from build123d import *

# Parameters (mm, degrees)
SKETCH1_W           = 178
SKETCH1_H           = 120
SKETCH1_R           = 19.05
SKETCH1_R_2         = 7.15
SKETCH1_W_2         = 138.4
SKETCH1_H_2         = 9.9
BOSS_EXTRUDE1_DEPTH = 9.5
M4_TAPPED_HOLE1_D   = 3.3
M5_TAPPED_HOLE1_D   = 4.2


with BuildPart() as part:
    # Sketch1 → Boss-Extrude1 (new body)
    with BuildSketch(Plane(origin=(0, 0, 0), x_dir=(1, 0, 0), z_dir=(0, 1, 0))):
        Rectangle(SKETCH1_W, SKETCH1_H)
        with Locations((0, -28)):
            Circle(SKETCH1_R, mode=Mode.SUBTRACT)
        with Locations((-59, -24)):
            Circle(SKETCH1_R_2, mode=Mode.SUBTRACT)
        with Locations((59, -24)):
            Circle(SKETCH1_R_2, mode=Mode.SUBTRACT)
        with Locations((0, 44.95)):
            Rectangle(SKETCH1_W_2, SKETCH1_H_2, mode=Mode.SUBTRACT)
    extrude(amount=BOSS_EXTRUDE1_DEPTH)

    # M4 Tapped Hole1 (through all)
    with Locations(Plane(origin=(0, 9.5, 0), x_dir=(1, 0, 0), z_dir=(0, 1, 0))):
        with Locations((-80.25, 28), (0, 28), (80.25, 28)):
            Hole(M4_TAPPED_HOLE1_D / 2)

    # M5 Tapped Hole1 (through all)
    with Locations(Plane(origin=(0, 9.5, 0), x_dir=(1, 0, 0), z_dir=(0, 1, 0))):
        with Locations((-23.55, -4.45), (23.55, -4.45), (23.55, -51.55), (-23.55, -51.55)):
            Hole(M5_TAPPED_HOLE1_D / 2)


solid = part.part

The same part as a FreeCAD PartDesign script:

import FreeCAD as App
import Part
import Sketcher
from FreeCAD import Vector

doc = App.newDocument("Part")
body = doc.addObject("PartDesign::Body", "Body")

sketch1 = doc.addObject("Sketcher::SketchObject", "Sketch")
body.addObject(sketch1)
sketch1.AttachmentSupport = (doc.XZ_Plane, [""])
sketch1.MapMode = "FlatFace"
sketch1.addGeometry([
    Part.LineSegment(Vector(-89, -60, 0), Vector(-89, 60, 0)),
    Part.LineSegment(Vector(-89, 60, 0), Vector(89, 60, 0)),
    Part.LineSegment(Vector(89, 60, 0), Vector(89, -60, 0)),
    Part.LineSegment(Vector(89, -60, 0), Vector(-89, -60, 0)),
    Part.Circle(Vector(-59, 24, 0), Vector(0, 0, 1), 7),
    Part.Circle(Vector(0, 28, 0), Vector(0, 0, 1), 19),
    Part.Circle(Vector(59, 24, 0), Vector(0, 0, 1), 7),
    Part.LineSegment(Vector(69, -40, 0), Vector(-69, -40, 0)),
    Part.LineSegment(Vector(-69, -40, 0), Vector(-69, -50, 0)),
    Part.LineSegment(Vector(-69, -50, 0), Vector(69, -50, 0)),
    Part.LineSegment(Vector(69, -50, 0), Vector(69, -40, 0)),
], False)
sketch1.addConstraint([
    Sketcher.Constraint("Coincident", 0, 2, 1, 1),
    Sketcher.Constraint("Coincident", 1, 2, 2, 1),
    Sketcher.Constraint("Coincident", 2, 2, 3, 1),
    Sketcher.Constraint("Coincident", 3, 2, 0, 1),
    Sketcher.Constraint("Coincident", 7, 2, 8, 1),
    Sketcher.Constraint("Coincident", 8, 2, 9, 1),
    Sketcher.Constraint("Coincident", 9, 2, 10, 1),
    Sketcher.Constraint("Coincident", 10, 2, 7, 1),
    Sketcher.Constraint("Vertical", 0),
    Sketcher.Constraint("Horizontal", 1),
    Sketcher.Constraint("Vertical", 2),
    Sketcher.Constraint("Horizontal", 3),
    Sketcher.Constraint("Horizontal", 7),
    Sketcher.Constraint("Vertical", 8),
    Sketcher.Constraint("Horizontal", 9),
    Sketcher.Constraint("Vertical", 10),
    Sketcher.Constraint("Equal", 4, 6),
    Sketcher.Constraint("Symmetric", 0, 2, 2, 2, -1, 1),
    Sketcher.Constraint("Symmetric", 4, 3, 6, 3, -2),
    Sketcher.Constraint("PointOnObject", 5, 3, -2),
    Sketcher.Constraint("Diameter", 4, 14.3),
    Sketcher.Constraint("Diameter", 5, 38.1),
    Sketcher.Constraint("DistanceX", 1, 1, 1, 2, 178.0),
    Sketcher.Constraint("DistanceY", 0, 1, 0, 2, 120.0),
    Sketcher.Constraint("DistanceX", 7, 2, 7, 1, 138.4),
    Sketcher.Constraint("DistanceY", 8, 2, 8, 1, 9.9),
    Sketcher.Constraint("DistanceX", 4, 3, -1, 1, 59.0),
    Sketcher.Constraint("DistanceY", -1, 1, 4, 3, 24.0),
    Sketcher.Constraint("DistanceY", -1, 1, 5, 3, 28.0),
    Sketcher.Constraint("DistanceY", 7, 2, -1, 1, 40.0),
    Sketcher.Constraint("DistanceX", 7, 2, -1, 1, 69.2),
])
pad1 = doc.addObject("PartDesign::Pad", "Pad")
body.addObject(pad1)
pad1.Profile = sketch1
pad1.Length = 9.5
pad1.Reversed = True

sketch2 = doc.addObject("Sketcher::SketchObject", "Sketch001")
body.addObject(sketch2)
sketch2.AttachmentSupport = (doc.XZ_Plane, [""])
sketch2.MapMode = "FlatFace"
sketch2.AttachmentOffset = App.Placement(Vector(0, 0, -9.5), App.Rotation())
sketch2.addGeometry([
    Part.Circle(Vector(-80.2, -28, 0), Vector(0, 0, 1), 1.6),
    Part.Circle(Vector(0, -28, 0), Vector(0, 0, 1), 1.6),
    Part.Circle(Vector(80.2, -28, 0), Vector(0, 0, 1), 1.6),
], False)
sketch2.addConstraint([
    Sketcher.Constraint("Equal", 0, 1),
    Sketcher.Constraint("Equal", 1, 2),
    Sketcher.Constraint("Symmetric", 0, 3, 2, 3, -2),
    Sketcher.Constraint("PointOnObject", 1, 3, -2),
    Sketcher.Constraint("Horizontal", 0, 3, 1, 3),
    Sketcher.Constraint("Diameter", 0, 3.3),
    Sketcher.Constraint("DistanceY", 0, 3, -1, 1, 28.0),
    Sketcher.Constraint("DistanceX", 0, 3, 2, 3, 160.5),
])
doc.recompute()
hole = doc.addObject("PartDesign::Hole", "Hole")
body.addObject(hole)
hole.Profile = sketch2
hole.ThreadType = "None"
hole.Diameter = 3.3
hole.DepthType = "ThroughAll"
hole.Reversed = True

sketch3 = doc.addObject("Sketcher::SketchObject", "Sketch002")
body.addObject(sketch3)
sketch3.AttachmentSupport = (doc.XZ_Plane, [""])
sketch3.MapMode = "FlatFace"
sketch3.AttachmentOffset = App.Placement(Vector(0, 0, -9.5), App.Rotation())
sketch3.addGeometry([
    Part.Circle(Vector(-23.6, 4.5, 0), Vector(0, 0, 1), 2.1),
    Part.Circle(Vector(23.6, 4.5, 0), Vector(0, 0, 1), 2.1),
    Part.Circle(Vector(23.6, 51.5, 0), Vector(0, 0, 1), 2.1),
    Part.Circle(Vector(-23.6, 51.5, 0), Vector(0, 0, 1), 2.1),
], False)
sketch3.addConstraint([
    Sketcher.Constraint("Equal", 0, 1),
    Sketcher.Constraint("Equal", 1, 2),
    Sketcher.Constraint("Equal", 2, 3),
    Sketcher.Constraint("Symmetric", 0, 3, 1, 3, -2),
    Sketcher.Constraint("Symmetric", 2, 3, 3, 3, -2),
    Sketcher.Constraint("Vertical", 1, 3, 2, 3),
    Sketcher.Constraint("Diameter", 0, 4.2),
    Sketcher.Constraint("DistanceX", 0, 3, 1, 3, 47.1),
    Sketcher.Constraint("DistanceY", 1, 3, 2, 3, 47.1),
    Sketcher.Constraint("DistanceY", -1, 1, 0, 3, 4.45),
])
doc.recompute()
hole2 = doc.addObject("PartDesign::Hole", "Hole001")
body.addObject(hole2)
hole2.Profile = sketch3
hole2.ThreadType = "None"
hole2.Diameter = 4.2
hole2.DepthType = "ThroughAll"
hole2.Reversed = True

doc.recompute()
